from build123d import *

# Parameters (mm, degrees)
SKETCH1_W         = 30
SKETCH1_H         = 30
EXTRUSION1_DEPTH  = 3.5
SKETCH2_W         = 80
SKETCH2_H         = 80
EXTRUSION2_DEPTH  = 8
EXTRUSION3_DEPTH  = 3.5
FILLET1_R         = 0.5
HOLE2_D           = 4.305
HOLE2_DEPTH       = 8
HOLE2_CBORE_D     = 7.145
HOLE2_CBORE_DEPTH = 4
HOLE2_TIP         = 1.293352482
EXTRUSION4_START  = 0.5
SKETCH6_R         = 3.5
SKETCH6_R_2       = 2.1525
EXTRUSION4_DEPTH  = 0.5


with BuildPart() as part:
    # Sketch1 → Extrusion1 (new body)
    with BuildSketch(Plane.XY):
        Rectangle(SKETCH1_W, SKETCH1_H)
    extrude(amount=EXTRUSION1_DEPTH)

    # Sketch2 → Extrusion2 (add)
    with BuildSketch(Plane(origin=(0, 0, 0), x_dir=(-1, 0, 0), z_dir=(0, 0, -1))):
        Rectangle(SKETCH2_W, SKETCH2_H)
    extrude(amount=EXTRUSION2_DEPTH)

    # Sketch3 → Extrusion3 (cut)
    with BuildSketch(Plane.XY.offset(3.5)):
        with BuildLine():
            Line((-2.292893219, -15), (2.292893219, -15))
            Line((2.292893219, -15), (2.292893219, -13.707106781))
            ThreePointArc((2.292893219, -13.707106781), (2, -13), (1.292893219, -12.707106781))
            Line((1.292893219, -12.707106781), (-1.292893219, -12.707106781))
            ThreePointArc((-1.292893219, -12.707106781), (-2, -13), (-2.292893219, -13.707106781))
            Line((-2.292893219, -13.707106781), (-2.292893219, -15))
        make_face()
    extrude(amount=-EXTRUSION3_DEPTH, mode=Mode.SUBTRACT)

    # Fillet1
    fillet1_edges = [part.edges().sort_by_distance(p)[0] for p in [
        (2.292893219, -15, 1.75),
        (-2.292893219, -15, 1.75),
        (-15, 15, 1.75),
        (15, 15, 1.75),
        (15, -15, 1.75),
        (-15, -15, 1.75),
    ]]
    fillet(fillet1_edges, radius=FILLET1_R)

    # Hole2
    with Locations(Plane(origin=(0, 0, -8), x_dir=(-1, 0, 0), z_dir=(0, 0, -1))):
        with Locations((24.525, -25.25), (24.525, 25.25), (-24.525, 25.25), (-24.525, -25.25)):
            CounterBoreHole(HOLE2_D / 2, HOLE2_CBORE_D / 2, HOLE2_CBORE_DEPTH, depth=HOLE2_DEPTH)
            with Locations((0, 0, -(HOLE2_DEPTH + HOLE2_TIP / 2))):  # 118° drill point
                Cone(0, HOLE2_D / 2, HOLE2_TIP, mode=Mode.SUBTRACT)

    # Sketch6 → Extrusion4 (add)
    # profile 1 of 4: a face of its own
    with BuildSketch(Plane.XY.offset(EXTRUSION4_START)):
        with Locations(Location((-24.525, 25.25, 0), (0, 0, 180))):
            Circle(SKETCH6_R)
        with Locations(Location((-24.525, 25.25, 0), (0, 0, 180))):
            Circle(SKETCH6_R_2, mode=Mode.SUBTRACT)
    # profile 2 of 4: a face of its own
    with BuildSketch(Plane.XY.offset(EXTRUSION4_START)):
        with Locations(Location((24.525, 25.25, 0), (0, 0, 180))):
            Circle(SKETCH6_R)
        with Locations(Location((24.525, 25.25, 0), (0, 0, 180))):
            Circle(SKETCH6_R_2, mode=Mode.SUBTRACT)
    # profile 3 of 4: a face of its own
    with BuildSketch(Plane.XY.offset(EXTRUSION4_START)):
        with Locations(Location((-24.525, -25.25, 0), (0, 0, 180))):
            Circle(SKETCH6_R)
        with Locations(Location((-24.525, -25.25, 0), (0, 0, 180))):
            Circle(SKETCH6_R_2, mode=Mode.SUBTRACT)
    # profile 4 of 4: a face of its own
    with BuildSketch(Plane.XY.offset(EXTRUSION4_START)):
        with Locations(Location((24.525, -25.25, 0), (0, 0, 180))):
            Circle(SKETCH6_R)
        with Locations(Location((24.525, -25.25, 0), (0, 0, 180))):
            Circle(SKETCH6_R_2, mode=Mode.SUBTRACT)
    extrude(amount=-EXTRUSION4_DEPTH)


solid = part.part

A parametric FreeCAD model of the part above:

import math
import FreeCAD as App
import Part
import Sketcher
from FreeCAD import Vector
Q = App.Units.Quantity


def edges_at(feature, points):
    """Names of the edges that pass closest to the given points."""
    edges = feature.Shape.Edges
    near = lambda p: min(range(len(edges)), key=lambda i: edges[i].distToShape(Part.Vertex(*p))[0])
    return sorted({f"Edge{near(p) + 1}" for p in points})


def add_polygon(sketch, points):
    """Adds a closed chain of lines whose ends are joined by coincident constraints."""
    first, n = sketch.GeometryCount, len(points)
    for a, b in zip(points, points[1:] + points[:1]):
        sketch.addGeometry(Part.LineSegment(App.Vector(*a, 0), App.Vector(*b, 0)), False)
    for i in range(n):
        sketch.addConstraint(Sketcher.Constraint("Coincident", first + i, 2, first + (i + 1) % n, 1))

doc = App.newDocument("Part")
params = doc.addObject("Spreadsheet::Sheet", "Params")
for row, (alias, value) in enumerate([
    ("sketch1_width", "30 mm"),
    ("pad1_length", "3.5 mm"),
    ("sketch2_width", "80 mm"),
    ("pad2_length", "8 mm"),
    ("sketch3_radius", "1 mm"),
    ("pocket1_length", "3.5 mm"),
    ("fillet_radius", "0.5 mm"),
    ("hole_diameter", "4.305 mm"),
    ("hole_depth", "8 mm"),
    ("hole_cbore_diameter", "7.145 mm"),
    ("hole_cbore_depth", "4 mm"),
    ("sketch5_diameter", "7 mm"),
    ("pad3_length", "0.5 mm"),
], start=1):
    params.set(f"A{row}", alias)
    params.set(f"B{row}", "=" + value)
    params.setAlias(f"B{row}", alias)

body = doc.addObject("PartDesign::Body", "Body")

# Sketch on XY plane
sketch1 = body.newObject("Sketcher::SketchObject", "Sketch")
sketch1.AttachmentSupport = (doc.getObject("XY_Plane"), [""])
sketch1.MapMode = "FlatFace"
add_polygon(sketch1, [(-15, 15), (-15, -15), (15, -15), (15, 15)])  # lines 0-3
sketch1.addConstraint([
    Sketcher.Constraint("Vertical", 0),
    Sketcher.Constraint("Horizontal", 1),
    Sketcher.Constraint("Vertical", 2),
    Sketcher.Constraint("Horizontal", 3),
    Sketcher.Constraint("Symmetric", 0, 2, 2, 2, -1, 1),
    Sketcher.Constraint("Equal", 3, 0),
    Sketcher.Constraint("DistanceX", 1, 1, 1, 2, Q("30 mm")),
])
sketch1.setExpression("Constraints[10]", "Params.sketch1_width")
pad1 = body.newObject("PartDesign::Pad", "Pad")
pad1.Profile = sketch1
pad1.setExpression("Length", "Params.pad1_length")

# Sketch on XY plane
sketch2 = body.newObject("Sketcher::SketchObject", "Sketch001")
sketch2.AttachmentSupport = (doc.getObject("XY_Plane"), [""])
sketch2.MapMode = "FlatFace"
add_polygon(sketch2, [(40, 40), (40, -40), (-40, -40), (-40, 40)])  # lines 0-3
sketch2.addConstraint([
    Sketcher.Constraint("Vertical", 0),
    Sketcher.Constraint("Horizontal", 1),
    Sketcher.Constraint("Vertical", 2),
    Sketcher.Constraint("Horizontal", 3),
    Sketcher.Constraint("Symmetric", 0, 2, 2, 2, -1, 1),
    Sketcher.Constraint("Equal", 3, 0),
    Sketcher.Constraint("DistanceX", 1, 2, 1, 1, Q("80 mm")),
])
sketch2.setExpression("Constraints[10]", "Params.sketch2_width")
pad2 = body.newObject("PartDesign::Pad", "Pad001")
pad2.Profile = sketch2
pad2.setExpression("Length", "Params.pad2_length")
pad2.Reversed = True

# Sketch on XY plane
sketch3 = body.newObject("Sketcher::SketchObject", "Sketch002")
sketch3.AttachmentSupport = (doc.getObject("XY_Plane"), [""])
sketch3.MapMode = "FlatFace"
sketch3.AttachmentOffset = App.Placement(Vector(0, 0, 3.5), App.Rotation())
sketch3.addGeometry([
    Part.LineSegment(Vector(-2.3, -15, 0), Vector(2.3, -15, 0)),  # 0
    Part.LineSegment(Vector(2.3, -15, 0), Vector(2.3, -13.7, 0)),  # 1
    Part.ArcOfCircle(Part.Circle(Vector(1.3, -13.7, 0), Vector(0, 0, 1), 1), math.radians(0), math.radians(90)),  # 2
    Part.LineSegment(Vector(1.3, -12.7, 0), Vector(-1.3, -12.7, 0)),  # 3
    Part.ArcOfCircle(Part.Circle(Vector(-1.3, -13.7, 0), Vector(0, 0, 1), 1), math.radians(90), math.radians(180)),  # 4
    Part.LineSegment(Vector(-2.3, -13.7, 0), Vector(-2.3, -15, 0)),  # 5
], False)
sketch3.addConstraint([
    Sketcher.Constraint("Coincident", 0, 2, 1, 1),
    Sketcher.Constraint("Tangent", 1, 2, 2, 1),
    Sketcher.Constraint("Tangent", 2, 2, 3, 1),
    Sketcher.Constraint("Tangent", 3, 2, 4, 1),
    Sketcher.Constraint("Tangent", 4, 2, 5, 1),
    Sketcher.Constraint("Coincident", 5, 2, 0, 1),
    Sketcher.Constraint("Horizontal", 0),
    Sketcher.Constraint("Vertical", 1),
    Sketcher.Constraint("Horizontal", 3),
    Sketcher.Constraint("Vertical", 5),
    Sketcher.Constraint("Equal", 2, 4),
    Sketcher.Constraint("Radius", 2, Q("1 mm")),
    Sketcher.Constraint("DistanceY", 0, 2, -1, 1, Q("15 mm")),
    Sketcher.Constraint("DistanceX", 0, 1, 0, 2, Q("4.585786 mm")),
    Sketcher.Constraint("DistanceY", 1, 1, 1, 2, Q("1.292893 mm")),
    Sketcher.Constraint("DistanceX", -1, 1, 2, 3, Q("1.292893 mm")),
])
sketch3.setExpression("Constraints[11]", "Params.sketch3_radius")
pocket1 = body.newObject("PartDesign::Pocket", "Pocket")
pocket1.Profile = sketch3
pocket1.setExpression("Length", "Params.pocket1_length")
doc.recompute()

fillet = body.newObject("PartDesign::Fillet", "Fillet")
fillet.Base = (pocket1, edges_at(pocket1, [
    (2.293, -15, 1.75),
    (-2.293, -15, 1.75),
    (-15, 15, 1.75),
    (15, 15, 1.75),
    (15, -15, 1.75),
    (-15, -15, 1.75),
]))
fillet.setExpression("Radius", "Params.fillet_radius")

# Sketch on XY plane
sketch4 = body.newObject("Sketcher::SketchObject", "Sketch003")
sketch4.AttachmentSupport = (doc.getObject("XY_Plane"), [""])
sketch4.MapMode = "FlatFace"
sketch4.AttachmentOffset = App.Placement(Vector(0, 0, -8), App.Rotation())
sketch4.addGeometry([
    Part.Circle(Vector(-24.5, -25.2, 0), Vector(0, 0, 1), 2.2),
    Part.Circle(Vector(-24.5, 25.2, 0), Vector(0, 0, 1), 2.2),
    Part.Circle(Vector(24.5, 25.2, 0), Vector(0, 0, 1), 2.2),
    Part.Circle(Vector(24.5, -25.2, 0), Vector(0, 0, 1), 2.2),
], False)
sketch4.addConstraint([
    Sketcher.Constraint("Equal", 0, 1),
    Sketcher.Constraint("Equal", 1, 2),
    Sketcher.Constraint("Equal", 2, 3),
    Sketcher.Constraint("Symmetric", 0, 3, 2, 3, -1, 1),
    Sketcher.Constraint("Symmetric", 1, 3, 3, 3, -1, 1),
    Sketcher.Constraint("Symmetric", 1, 3, 2, 3, -2),
    Sketcher.Constraint("Diameter", 0, Q("4.305 mm")),
    Sketcher.Constraint("DistanceY", 0, 3, 1, 3, Q("50.5 mm")),
    Sketcher.Constraint("DistanceX", 1, 3, 2, 3, Q("49.05 mm")),
])
doc.recompute()
hole = body.newObject("PartDesign::Hole", "Hole")
hole.Profile = sketch4
hole.ThreadType = "None"
hole.setExpression("Diameter", "Params.hole_diameter")
hole.DepthType = "Dimension"
hole.setExpression("Depth", "Params.hole_depth")
hole.DrillPoint = "Angled"
hole.DrillPointAngle = 118
hole.HoleCutType = "Counterbore"
hole.setExpression("HoleCutDiameter", "Params.hole_cbore_diameter")
hole.setExpression("HoleCutDepth", "Params.hole_cbore_depth")
hole.Reversed = True

# Sketch on XY plane
sketch5 = body.newObject("Sketcher::SketchObject", "Sketch004")
sketch5.AttachmentSupport = (doc.getObject("XY_Plane"), [""])
sketch5.MapMode = "FlatFace"
sketch5.AttachmentOffset = App.Placement(Vector(0, 0, 0.5), App.Rotation())
sketch5.addGeometry([
    Part.Circle(Vector(-24.5, 25.2, 0), Vector(0, 0, 1), 3.5),  # 0
    Part.Circle(Vector(-24.5, 25.2, 0), Vector(0, 0, 1), 2.2),  # 1
    Part.Circle(Vector(24.5, 25.2, 0), Vector(0, 0, 1), 3.5),  # 2
    Part.Circle(Vector(24.5, 25.2, 0), Vector(0, 0, 1), 2.2),  # 3
    Part.Circle(Vector(-24.5, -25.2, 0), Vector(0, 0, 1), 3.5),  # 4
    Part.Circle(Vector(-24.5, -25.2, 0), Vector(0, 0, 1), 2.2),  # 5
    Part.Circle(Vector(24.5, -25.2, 0), Vector(0, 0, 1), 3.5),  # 6
    Part.Circle(Vector(24.5, -25.2, 0), Vector(0, 0, 1), 2.2),  # 7
], False)
sketch5.addConstraint([
    Sketcher.Constraint("Coincident", 1, 3, 0, 3),
    Sketcher.Constraint("Coincident", 3, 3, 2, 3),
    Sketcher.Constraint("Coincident", 5, 3, 4, 3),
    Sketcher.Constraint("Coincident", 7, 3, 6, 3),
    Sketcher.Constraint("Equal", 0, 2),
    Sketcher.Constraint("Equal", 1, 3),
    Sketcher.Constraint("Equal", 2, 4),
    Sketcher.Constraint("Equal", 3, 5),
    Sketcher.Constraint("Equal", 4, 6),
    Sketcher.Constraint("Equal", 5, 7),
    Sketcher.Constraint("Symmetric", 2, 3, 4, 3, -1, 1),
    Sketcher.Constraint("Symmetric", 0, 3, 6, 3, -1, 1),
    Sketcher.Constraint("Symmetric", 0, 3, 2, 3, -2),
    Sketcher.Constraint("Diameter", 0, Q("7 mm")),
    Sketcher.Constraint("Diameter", 1, Q("4.305 mm")),
    Sketcher.Constraint("DistanceY", 4, 3, 0, 3, Q("50.5 mm")),
    Sketcher.Constraint("DistanceX", 0, 3, 2, 3, Q("49.05 mm")),
])
sketch5.setExpression("Constraints[13]", "Params.sketch5_diameter")
pad3 = body.newObject("PartDesign::Pad", "Pad002")
pad3.Profile = sketch5
pad3.setExpression("Length", "Params.pad3_length")
pad3.Reversed = True

doc.recompute()
